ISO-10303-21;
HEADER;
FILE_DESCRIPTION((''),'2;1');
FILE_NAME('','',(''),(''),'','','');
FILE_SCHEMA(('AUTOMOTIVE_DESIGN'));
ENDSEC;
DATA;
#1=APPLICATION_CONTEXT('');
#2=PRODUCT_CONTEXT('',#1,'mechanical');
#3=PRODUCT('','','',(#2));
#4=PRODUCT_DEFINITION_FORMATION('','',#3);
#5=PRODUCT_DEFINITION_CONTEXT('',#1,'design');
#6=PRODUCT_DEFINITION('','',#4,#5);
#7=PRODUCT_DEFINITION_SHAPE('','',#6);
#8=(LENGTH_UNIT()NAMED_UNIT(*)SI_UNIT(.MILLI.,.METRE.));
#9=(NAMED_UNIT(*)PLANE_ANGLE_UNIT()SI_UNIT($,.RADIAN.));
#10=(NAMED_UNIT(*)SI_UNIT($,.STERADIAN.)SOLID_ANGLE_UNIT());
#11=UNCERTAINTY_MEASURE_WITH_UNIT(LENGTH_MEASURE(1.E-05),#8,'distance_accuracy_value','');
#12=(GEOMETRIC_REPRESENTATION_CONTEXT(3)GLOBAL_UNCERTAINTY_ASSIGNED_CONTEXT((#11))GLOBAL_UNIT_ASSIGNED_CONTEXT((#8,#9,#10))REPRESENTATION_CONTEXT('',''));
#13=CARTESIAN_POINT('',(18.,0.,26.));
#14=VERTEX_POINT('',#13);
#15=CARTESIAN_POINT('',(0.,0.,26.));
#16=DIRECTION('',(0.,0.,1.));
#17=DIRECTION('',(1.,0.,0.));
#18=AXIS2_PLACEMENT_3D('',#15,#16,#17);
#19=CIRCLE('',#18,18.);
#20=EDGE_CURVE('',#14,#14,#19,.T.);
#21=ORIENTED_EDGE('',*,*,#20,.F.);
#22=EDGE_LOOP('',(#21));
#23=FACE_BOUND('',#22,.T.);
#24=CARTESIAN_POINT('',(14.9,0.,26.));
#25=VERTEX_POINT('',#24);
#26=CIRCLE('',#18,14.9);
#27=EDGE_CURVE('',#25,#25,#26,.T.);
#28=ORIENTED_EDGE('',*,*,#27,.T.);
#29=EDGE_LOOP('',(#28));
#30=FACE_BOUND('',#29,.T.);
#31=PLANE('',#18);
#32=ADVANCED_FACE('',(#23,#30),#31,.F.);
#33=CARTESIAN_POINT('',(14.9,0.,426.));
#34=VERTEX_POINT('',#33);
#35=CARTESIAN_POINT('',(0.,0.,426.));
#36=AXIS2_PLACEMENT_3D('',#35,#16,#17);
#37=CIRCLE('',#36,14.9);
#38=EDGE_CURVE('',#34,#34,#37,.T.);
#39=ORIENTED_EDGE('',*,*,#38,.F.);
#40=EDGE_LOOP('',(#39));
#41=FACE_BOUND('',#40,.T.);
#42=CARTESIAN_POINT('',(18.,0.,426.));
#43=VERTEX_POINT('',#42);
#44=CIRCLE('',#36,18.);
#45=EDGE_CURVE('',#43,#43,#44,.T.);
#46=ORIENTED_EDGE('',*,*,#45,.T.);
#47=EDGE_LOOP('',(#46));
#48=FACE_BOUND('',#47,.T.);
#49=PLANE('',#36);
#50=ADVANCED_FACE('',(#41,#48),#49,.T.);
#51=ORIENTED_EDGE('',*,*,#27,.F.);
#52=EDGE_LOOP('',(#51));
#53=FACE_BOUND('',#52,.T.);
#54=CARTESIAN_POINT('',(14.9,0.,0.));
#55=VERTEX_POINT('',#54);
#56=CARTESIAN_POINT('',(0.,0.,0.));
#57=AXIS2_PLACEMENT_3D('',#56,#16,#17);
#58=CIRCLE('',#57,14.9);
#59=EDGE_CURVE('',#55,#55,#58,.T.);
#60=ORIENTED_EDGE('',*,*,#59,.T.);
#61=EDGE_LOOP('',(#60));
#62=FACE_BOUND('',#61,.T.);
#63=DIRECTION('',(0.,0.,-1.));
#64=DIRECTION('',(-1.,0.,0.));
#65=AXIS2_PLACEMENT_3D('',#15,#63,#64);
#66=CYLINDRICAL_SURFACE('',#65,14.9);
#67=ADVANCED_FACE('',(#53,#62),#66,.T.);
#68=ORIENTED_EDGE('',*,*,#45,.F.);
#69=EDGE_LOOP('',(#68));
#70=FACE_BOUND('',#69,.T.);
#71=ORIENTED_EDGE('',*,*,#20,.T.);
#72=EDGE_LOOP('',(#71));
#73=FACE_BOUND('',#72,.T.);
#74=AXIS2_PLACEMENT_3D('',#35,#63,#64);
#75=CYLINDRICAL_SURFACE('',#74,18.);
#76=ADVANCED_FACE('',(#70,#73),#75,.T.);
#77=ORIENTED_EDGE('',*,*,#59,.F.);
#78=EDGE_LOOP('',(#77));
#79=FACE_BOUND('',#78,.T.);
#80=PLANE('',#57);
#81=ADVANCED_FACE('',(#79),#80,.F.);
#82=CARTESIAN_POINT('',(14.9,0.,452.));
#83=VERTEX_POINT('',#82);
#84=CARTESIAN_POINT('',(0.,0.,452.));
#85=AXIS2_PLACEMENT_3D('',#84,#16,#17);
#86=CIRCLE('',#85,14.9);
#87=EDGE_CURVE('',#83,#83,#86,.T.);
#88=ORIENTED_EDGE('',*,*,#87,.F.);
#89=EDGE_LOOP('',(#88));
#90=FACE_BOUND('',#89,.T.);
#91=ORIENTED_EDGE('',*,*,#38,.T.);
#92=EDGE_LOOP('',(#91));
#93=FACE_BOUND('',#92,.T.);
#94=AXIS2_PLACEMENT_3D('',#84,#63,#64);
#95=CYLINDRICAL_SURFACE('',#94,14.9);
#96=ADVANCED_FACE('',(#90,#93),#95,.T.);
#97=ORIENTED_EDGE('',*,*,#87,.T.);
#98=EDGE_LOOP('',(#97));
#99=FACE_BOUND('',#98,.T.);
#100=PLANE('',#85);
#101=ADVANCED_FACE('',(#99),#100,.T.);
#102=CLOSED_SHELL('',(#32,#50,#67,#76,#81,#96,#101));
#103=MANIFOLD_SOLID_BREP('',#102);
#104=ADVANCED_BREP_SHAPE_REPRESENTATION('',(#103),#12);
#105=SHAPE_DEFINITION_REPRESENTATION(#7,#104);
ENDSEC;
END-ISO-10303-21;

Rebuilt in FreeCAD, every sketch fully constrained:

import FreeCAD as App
import Part
import Sketcher
Q = App.Units.Quantity

doc = App.newDocument("Part")
body = doc.addObject("PartDesign::Body", "Body")

sketch1 = doc.addObject("Sketcher::SketchObject", "Sketch")
body.addObject(sketch1)
sketch1.AttachmentSupport = (doc.XY_Plane, [""])
sketch1.MapMode = "FlatFace"
sketch1.addGeometry(Part.Circle(App.Vector(0, 0, 0), App.Vector(0, 0, 1), 15), False)
sketch1.addConstraint([
    Sketcher.Constraint("Coincident", 0, 3, -1, 1),
    Sketcher.Constraint("Diameter", 0, Q("29.8 mm")),
])
pad1 = doc.addObject("PartDesign::Pad", "Pad")
body.addObject(pad1)
pad1.Profile = sketch1
pad1.Length = 26

sketch2 = doc.addObject("Sketcher::SketchObject", "Sketch001")
body.addObject(sketch2)
sketch2.AttachmentSupport = (doc.XY_Plane, [""])
sketch2.MapMode = "FlatFace"
sketch2.AttachmentOffset = App.Placement(App.Vector(0, 0, 26), App.Rotation())
sketch2.addGeometry(Part.Circle(App.Vector(0, 0, 0), App.Vector(0, 0, 1), 18), False)
sketch2.addConstraint([
    Sketcher.Constraint("Coincident", 0, 3, -1, 1),
    Sketcher.Constraint("Diameter", 0, Q("36 mm")),
])
pad2 = doc.addObject("PartDesign::Pad", "Pad001")
body.addObject(pad2)
pad2.Profile = sketch2
pad2.Length = 400

sketch3 = doc.addObject("Sketcher::SketchObject", "Sketch002")
body.addObject(sketch3)
sketch3.AttachmentSupport = (doc.XY_Plane, [""])
sketch3.MapMode = "FlatFace"
sketch3.AttachmentOffset = App.Placement(App.Vector(0, 0, 426), App.Rotation())
sketch3.addGeometry(Part.Circle(App.Vector(0, 0, 0), App.Vector(0, 0, 1), 15), False)
sketch3.addConstraint([
    Sketcher.Constraint("Coincident", 0, 3, -1, 1),
    Sketcher.Constraint("Diameter", 0, Q("29.8 mm")),
])
pad3 = doc.addObject("PartDesign::Pad", "Pad002")
body.addObject(pad3)
pad3.Profile = sketch3
pad3.Length = 26

doc.recompute()
